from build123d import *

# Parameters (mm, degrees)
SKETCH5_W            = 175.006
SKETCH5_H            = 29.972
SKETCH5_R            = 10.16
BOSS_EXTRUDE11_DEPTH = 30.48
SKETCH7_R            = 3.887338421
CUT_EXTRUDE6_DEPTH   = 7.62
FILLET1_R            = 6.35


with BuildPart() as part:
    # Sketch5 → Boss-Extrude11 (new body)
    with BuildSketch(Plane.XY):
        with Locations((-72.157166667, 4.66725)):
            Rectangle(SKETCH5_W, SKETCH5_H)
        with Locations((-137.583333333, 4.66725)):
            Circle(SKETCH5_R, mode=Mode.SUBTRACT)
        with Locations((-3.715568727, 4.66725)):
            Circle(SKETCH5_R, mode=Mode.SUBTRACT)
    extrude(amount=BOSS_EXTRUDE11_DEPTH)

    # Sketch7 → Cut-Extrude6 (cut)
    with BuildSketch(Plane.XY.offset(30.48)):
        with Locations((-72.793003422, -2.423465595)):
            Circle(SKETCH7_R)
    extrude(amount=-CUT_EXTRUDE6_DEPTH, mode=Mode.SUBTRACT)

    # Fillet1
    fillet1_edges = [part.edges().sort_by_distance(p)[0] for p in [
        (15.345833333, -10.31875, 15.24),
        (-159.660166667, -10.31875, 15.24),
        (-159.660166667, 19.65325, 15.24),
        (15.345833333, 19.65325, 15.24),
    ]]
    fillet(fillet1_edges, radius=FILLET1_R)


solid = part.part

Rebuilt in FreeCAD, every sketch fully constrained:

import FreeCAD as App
import Part
import Sketcher
Q = App.Units.Quantity


def edges_at(feature, points):
    """Names of the edges that pass closest to the given points."""
    edges = feature.Shape.Edges
    near = lambda p: min(range(len(edges)), key=lambda i: edges[i].distToShape(Part.Vertex(*p))[0])
    return sorted({f"Edge{near(p) + 1}" for p in points})


def add_polygon(sketch, points):
    """Adds a closed chain of lines whose ends are joined by coincident constraints."""
    first, n = sketch.GeometryCount, len(points)
    for a, b in zip(points, points[1:] + points[:1]):
        sketch.addGeometry(Part.LineSegment(App.Vector(*a, 0), App.Vector(*b, 0)), False)
    for i in range(n):
        sketch.addConstraint(Sketcher.Constraint("Coincident", first + i, 2, first + (i + 1) % n, 1))

doc = App.newDocument("Part")
body = doc.addObject("PartDesign::Body", "Body")

# Sketch on XY plane
sketch1 = body.newObject("Sketcher::SketchObject", "Sketch")
sketch1.AttachmentSupport = (doc.getObject("XY_Plane"), [""])
sketch1.MapMode = "FlatFace"
add_polygon(sketch1, [(-160, 20), (-160, -10), (15, -10), (15, 20)])  # lines 0-3
sketch1.addGeometry(Part.Circle(App.Vector(-138, 5, 0), App.Vector(0, 0, 1), 10), False)  # 4
sketch1.addGeometry(Part.Circle(App.Vector(-4, 5, 0), App.Vector(0, 0, 1), 10), False)  # 5
sketch1.addConstraint([
    Sketcher.Constraint("Vertical", 0),
    Sketcher.Constraint("Horizontal", 1),
    Sketcher.Constraint("Vertical", 2),
    Sketcher.Constraint("Horizontal", 3),
    Sketcher.Constraint("Equal", 4, 5),
    Sketcher.Constraint("Horizontal", 4, 3, 5, 3),
    Sketcher.Constraint("Diameter", 4, Q("0.8 in")),
    Sketcher.Constraint("DistanceX", 1, 1, 1, 2, Q("6.89 in")),
    Sketcher.Constraint("DistanceY", 0, 2, 0, 1, Q("1.18 in")),
    Sketcher.Constraint("DistanceY", 0, 2, 4, 3, Q("0.59 in")),
    Sketcher.Constraint("DistanceY", 0, 2, -1, 1, Q("0.40625 in")),
    Sketcher.Constraint("DistanceX", 5, 3, -1, 1, Q("3.715569 mm")),
    Sketcher.Constraint("DistanceX", 4, 3, -1, 1, Q("137.583333 mm")),
    Sketcher.Constraint("DistanceX", 0, 2, -1, 1, Q("159.660167 mm")),
])
pad1 = body.newObject("PartDesign::Pad", "Pad")
pad1.Profile = sketch1
pad1.Length = Q("1.2 in")

# Sketch on XY plane
sketch2 = body.newObject("Sketcher::SketchObject", "Sketch001")
sketch2.AttachmentSupport = (doc.getObject("XY_Plane"), [""])
sketch2.MapMode = "FlatFace"
sketch2.AttachmentOffset = App.Placement(App.Vector(0, 0, 1.2 * 25.4), App.Rotation())
sketch2.addGeometry(Part.Circle(App.Vector(-72.8, -2.4, 0), App.Vector(0, 0, 1), 3.9), False)
sketch2.addConstraint([
    Sketcher.Constraint("Diameter", 0, Q("7.774677 mm")),
    Sketcher.Constraint("DistanceX", 0, 3, -1, 1, Q("72.793003 mm")),
    Sketcher.Constraint("DistanceY", 0, 3, -1, 1, Q("2.423466 mm")),
])
pocket1 = body.newObject("PartDesign::Pocket", "Pocket")
pocket1.Profile = sketch2
pocket1.Length = Q("0.3 in")
doc.recompute()

fillet = body.newObject("PartDesign::Fillet", "Fillet")
fillet.Base = (pocket1, edges_at(pocket1, [
    (15.346, -10.319, 15.24),
    (-159.66, -10.319, 15.24),
    (-159.66, 19.653, 15.24),
    (15.346, 19.653, 15.24),
]))
fillet.Radius = Q("0.25 in")

doc.recompute()
